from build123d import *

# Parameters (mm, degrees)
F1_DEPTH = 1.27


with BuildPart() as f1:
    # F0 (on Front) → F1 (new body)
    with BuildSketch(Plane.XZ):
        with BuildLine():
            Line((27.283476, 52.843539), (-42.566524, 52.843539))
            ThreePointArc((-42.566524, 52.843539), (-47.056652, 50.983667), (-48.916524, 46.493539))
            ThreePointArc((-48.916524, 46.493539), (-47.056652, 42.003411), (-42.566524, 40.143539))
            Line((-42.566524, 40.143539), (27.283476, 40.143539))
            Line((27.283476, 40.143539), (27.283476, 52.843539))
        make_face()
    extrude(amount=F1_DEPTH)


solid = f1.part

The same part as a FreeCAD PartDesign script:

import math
import FreeCAD as App
import Part
import Sketcher

V = App.Vector
Q = App.Units.Quantity

doc = App.newDocument("Part")
params = doc.addObject("Spreadsheet::Sheet", "Params")
for row, (alias, value) in enumerate([
    ("sketch1_radius", "0.25 in"),
    ("pad1_length", "0.05 in"),
], start=1):
    params.set(f"A{row}", alias)
    params.set(f"B{row}", "=" + value)
    params.setAlias(f"B{row}", alias)

body = doc.addObject("PartDesign::Body", "Body")

# Sketch on XZ plane
sketch1 = body.newObject("Sketcher::SketchObject", "Sketch")
sketch1.AttachmentSupport = (doc.getObject("XZ_Plane"), [""])
sketch1.MapMode = "FlatFace"
sketch1.addGeometry(Part.LineSegment(V(27, 53, 0), V(-43, 53, 0)), False)
sketch1.addGeometry(Part.ArcOfCircle(Part.Circle(V(-43, 46, 0), V(0, 0, 1), 6), math.radians(90), math.radians(180)), False)
sketch1.addGeometry(Part.ArcOfCircle(Part.Circle(V(-43, 46, 0), V(0, 0, 1), 6), math.radians(-180), math.radians(-90)), False)
sketch1.addGeometry(Part.LineSegment(V(-43, 40, 0), V(27, 40, 0)), False)
sketch1.addGeometry(Part.LineSegment(V(27, 40, 0), V(27, 53, 0)), False)
sketch1.addConstraint(Sketcher.Constraint("Tangent", 0, 2, 1, 1))
sketch1.addConstraint(Sketcher.Constraint("Tangent", 1, 2, 2, 1))
sketch1.addConstraint(Sketcher.Constraint("Tangent", 2, 2, 3, 1))
sketch1.addConstraint(Sketcher.Constraint("Coincident", 3, 2, 4, 1))
sketch1.addConstraint(Sketcher.Constraint("Coincident", 4, 2, 0, 1))
sketch1.addConstraint(Sketcher.Constraint("Horizontal", 0))
sketch1.addConstraint(Sketcher.Constraint("Horizontal", 3))
sketch1.addConstraint(Sketcher.Constraint("Vertical", 4))
sketch1.addConstraint(Sketcher.Constraint("Equal", 1, 2))
sketch1.addConstraint(Sketcher.Constraint("Horizontal", 2, 3, 1, 2))
sketch1.addConstraint(Sketcher.Constraint("Radius", 1, Q("0.25 in")))
sketch1.addConstraint(Sketcher.Constraint("DistanceX", 1, 2, 3, 2, Q("3 in")))
sketch1.addConstraint(Sketcher.Constraint("DistanceY", -1, 1, 1, 3, 46.493539))
sketch1.addConstraint(Sketcher.Constraint("DistanceX", 1, 3, -1, 1, 42.566524))
sketch1.setExpression("Constraints[10]", "Params.sketch1_radius")
pad1 = body.newObject("PartDesign::Pad", "Pad")
pad1.Profile = sketch1
pad1.setExpression("Length", "Params.pad1_length")

doc.recompute()
